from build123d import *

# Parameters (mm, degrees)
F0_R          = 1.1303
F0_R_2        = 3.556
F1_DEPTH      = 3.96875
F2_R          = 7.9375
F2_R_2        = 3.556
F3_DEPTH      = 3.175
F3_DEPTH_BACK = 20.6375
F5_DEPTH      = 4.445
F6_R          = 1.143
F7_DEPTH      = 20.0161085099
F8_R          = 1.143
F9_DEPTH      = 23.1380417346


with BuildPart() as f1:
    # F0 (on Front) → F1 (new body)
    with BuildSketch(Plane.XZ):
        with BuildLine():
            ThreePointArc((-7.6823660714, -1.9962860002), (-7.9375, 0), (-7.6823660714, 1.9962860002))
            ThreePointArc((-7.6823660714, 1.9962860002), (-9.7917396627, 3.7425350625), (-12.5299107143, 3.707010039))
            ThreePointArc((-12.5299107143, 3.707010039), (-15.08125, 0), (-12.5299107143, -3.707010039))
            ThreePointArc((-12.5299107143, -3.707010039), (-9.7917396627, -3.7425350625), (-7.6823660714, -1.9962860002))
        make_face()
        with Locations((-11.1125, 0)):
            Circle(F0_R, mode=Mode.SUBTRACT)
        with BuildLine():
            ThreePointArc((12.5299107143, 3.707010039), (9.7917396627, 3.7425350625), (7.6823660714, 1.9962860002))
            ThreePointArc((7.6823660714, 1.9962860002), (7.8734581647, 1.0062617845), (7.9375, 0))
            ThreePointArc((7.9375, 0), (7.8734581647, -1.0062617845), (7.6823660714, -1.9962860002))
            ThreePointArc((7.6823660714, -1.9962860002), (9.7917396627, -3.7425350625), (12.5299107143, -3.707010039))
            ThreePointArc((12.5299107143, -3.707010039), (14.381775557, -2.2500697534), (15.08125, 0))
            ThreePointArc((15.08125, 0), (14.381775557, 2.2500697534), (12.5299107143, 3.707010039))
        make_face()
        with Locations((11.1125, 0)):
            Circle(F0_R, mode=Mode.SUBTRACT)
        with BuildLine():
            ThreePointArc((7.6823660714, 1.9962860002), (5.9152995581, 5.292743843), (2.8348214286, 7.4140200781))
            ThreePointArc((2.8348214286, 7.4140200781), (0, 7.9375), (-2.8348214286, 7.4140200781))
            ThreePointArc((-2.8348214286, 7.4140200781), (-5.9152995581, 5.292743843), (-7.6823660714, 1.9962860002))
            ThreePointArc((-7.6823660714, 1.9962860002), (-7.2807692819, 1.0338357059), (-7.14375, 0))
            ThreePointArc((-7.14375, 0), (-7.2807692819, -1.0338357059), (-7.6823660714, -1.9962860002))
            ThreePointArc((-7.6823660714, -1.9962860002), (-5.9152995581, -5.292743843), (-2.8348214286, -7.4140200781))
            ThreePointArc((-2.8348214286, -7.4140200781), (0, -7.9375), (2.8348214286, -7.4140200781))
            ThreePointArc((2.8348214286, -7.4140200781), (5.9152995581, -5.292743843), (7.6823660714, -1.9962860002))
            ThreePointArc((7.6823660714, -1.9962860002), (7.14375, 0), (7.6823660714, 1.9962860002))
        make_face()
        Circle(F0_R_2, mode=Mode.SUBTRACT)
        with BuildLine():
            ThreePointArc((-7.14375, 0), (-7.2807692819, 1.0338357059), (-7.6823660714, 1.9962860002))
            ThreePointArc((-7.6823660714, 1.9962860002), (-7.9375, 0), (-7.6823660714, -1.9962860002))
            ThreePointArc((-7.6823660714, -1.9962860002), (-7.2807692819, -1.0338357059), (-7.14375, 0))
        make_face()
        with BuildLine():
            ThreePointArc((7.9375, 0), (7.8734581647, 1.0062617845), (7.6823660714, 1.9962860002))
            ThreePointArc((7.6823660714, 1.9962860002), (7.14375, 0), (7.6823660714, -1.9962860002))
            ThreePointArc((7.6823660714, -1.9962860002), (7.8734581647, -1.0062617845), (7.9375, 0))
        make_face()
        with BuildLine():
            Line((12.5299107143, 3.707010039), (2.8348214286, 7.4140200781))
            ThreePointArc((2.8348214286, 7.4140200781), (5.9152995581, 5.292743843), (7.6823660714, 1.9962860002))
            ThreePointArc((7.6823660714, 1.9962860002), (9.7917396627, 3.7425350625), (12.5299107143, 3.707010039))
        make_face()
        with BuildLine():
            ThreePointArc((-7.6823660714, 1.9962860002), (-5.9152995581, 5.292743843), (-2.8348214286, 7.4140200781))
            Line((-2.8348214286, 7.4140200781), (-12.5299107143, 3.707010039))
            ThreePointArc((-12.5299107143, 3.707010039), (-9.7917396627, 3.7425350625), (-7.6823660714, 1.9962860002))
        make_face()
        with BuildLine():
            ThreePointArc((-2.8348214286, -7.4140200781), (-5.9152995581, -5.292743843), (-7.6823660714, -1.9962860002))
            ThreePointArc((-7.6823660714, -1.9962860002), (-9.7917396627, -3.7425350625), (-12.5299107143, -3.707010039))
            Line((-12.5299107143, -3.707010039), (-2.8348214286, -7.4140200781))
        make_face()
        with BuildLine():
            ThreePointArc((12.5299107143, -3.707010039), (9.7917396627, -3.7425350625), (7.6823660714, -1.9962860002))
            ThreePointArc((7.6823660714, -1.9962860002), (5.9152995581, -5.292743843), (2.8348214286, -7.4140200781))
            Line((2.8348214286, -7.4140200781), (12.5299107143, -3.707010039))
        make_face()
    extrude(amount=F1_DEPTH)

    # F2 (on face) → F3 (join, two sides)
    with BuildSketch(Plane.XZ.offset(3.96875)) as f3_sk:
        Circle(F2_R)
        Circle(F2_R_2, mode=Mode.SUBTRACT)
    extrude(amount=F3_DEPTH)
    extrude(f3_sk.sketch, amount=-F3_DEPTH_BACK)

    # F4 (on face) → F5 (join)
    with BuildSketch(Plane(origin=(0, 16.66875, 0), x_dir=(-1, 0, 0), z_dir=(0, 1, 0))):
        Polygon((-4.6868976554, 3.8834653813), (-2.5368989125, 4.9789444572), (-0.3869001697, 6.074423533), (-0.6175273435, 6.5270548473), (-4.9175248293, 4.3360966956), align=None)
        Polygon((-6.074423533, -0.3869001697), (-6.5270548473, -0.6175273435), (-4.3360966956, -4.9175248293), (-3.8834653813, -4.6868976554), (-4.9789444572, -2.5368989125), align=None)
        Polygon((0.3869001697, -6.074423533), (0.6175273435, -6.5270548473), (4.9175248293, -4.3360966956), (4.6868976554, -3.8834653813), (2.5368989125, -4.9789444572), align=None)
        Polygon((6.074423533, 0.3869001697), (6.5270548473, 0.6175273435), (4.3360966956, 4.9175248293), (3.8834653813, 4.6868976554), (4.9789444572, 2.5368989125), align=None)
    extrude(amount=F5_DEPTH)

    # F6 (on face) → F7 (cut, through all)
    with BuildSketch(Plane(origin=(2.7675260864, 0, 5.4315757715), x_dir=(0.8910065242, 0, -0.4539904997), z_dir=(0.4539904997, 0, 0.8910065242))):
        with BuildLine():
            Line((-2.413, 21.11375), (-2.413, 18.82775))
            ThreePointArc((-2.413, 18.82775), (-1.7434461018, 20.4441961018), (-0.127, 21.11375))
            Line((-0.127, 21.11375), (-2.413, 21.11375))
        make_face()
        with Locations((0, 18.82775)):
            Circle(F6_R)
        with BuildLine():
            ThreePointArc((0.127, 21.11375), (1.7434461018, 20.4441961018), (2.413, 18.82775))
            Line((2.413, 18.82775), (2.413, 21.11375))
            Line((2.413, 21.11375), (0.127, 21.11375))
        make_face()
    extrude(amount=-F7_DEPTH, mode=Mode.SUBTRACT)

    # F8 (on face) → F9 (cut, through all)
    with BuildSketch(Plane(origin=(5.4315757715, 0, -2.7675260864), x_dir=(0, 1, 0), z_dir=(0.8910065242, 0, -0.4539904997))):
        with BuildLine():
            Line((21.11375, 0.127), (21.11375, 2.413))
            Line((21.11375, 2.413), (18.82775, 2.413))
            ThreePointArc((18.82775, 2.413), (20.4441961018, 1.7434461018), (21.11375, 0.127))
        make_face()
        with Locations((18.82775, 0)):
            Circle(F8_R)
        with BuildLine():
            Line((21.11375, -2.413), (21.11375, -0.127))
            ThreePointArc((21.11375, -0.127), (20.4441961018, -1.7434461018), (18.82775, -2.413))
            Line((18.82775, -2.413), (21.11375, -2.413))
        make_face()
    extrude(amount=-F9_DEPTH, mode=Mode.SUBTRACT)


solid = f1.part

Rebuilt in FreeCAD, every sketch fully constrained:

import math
import FreeCAD as App
import Part
import Sketcher
Q = App.Units.Quantity


def add_polygon(sketch, points):
    """Adds a closed chain of lines whose ends are joined by coincident constraints."""
    first, n = sketch.GeometryCount, len(points)
    for a, b in zip(points, points[1:] + points[:1]):
        sketch.addGeometry(Part.LineSegment(App.Vector(*a, 0), App.Vector(*b, 0)), False)
    for i in range(n):
        sketch.addConstraint(Sketcher.Constraint("Coincident", first + i, 2, first + (i + 1) % n, 1))

doc = App.newDocument("Part")
body = doc.addObject("PartDesign::Body", "Body")

# Sketch on XZ plane
sketch1 = body.newObject("Sketcher::SketchObject", "Sketch")
sketch1.AttachmentSupport = (doc.getObject("XZ_Plane"), [""])
sketch1.MapMode = "FlatFace"
sketch1.addGeometry([
    Part.ArcOfCircle(Part.Circle(App.Vector(0, 0, 0), App.Vector(0, 0, 1), 7.9), math.radians(-111), math.radians(-69)),  # 0
    Part.LineSegment(App.Vector(2.8, -7.4, 0), App.Vector(12.5, -3.7, 0)),  # 1
    Part.ArcOfCircle(Part.Circle(App.Vector(11.1, 0, 0), App.Vector(0, 0, 1), 4), math.radians(-69), math.radians(0)),  # 2
    Part.ArcOfCircle(Part.Circle(App.Vector(11.1, 0, 0), App.Vector(0, 0, 1), 4), math.radians(0), math.radians(69)),  # 3
    Part.LineSegment(App.Vector(12.5, 3.7, 0), App.Vector(2.8, 7.4, 0)),  # 4
    Part.ArcOfCircle(Part.Circle(App.Vector(0, 0, 0), App.Vector(0, 0, 1), 7.9), math.radians(69), math.radians(111)),  # 5
    Part.LineSegment(App.Vector(-2.8, 7.4, 0), App.Vector(-12.5, 3.7, 0)),  # 6
    Part.ArcOfCircle(Part.Circle(App.Vector(-11.1, 0, 0), App.Vector(0, 0, 1), 4), math.radians(111), math.radians(249)),  # 7
    Part.LineSegment(App.Vector(-12.5, -3.7, 0), App.Vector(-2.8, -7.4, 0)),  # 8
    Part.Circle(App.Vector(-11.1, 0, 0), App.Vector(0, 0, 1), 1.1),  # 9
    Part.Circle(App.Vector(0, 0, 0), App.Vector(0, 0, 1), 3.6),  # 10
    Part.Circle(App.Vector(11.1, 0, 0), App.Vector(0, 0, 1), 1.1),  # 11
], False)
sketch1.addConstraint([
    Sketcher.Constraint("Tangent", 0, 2, 1, 1),
    Sketcher.Constraint("Tangent", 1, 2, 2, 1),
    Sketcher.Constraint("Tangent", 2, 2, 3, 1),
    Sketcher.Constraint("Tangent", 3, 2, 4, 1),
    Sketcher.Constraint("Tangent", 4, 2, 5, 1),
    Sketcher.Constraint("Tangent", 5, 2, 6, 1),
    Sketcher.Constraint("Tangent", 6, 2, 7, 1),
    Sketcher.Constraint("Tangent", 7, 2, 8, 1),
    Sketcher.Constraint("Tangent", 8, 2, 0, 1),
    Sketcher.Constraint("Coincident", 0, 3, -1, 1),
    Sketcher.Constraint("Coincident", 5, 3, -1, 1),
    Sketcher.Constraint("Coincident", 10, 3, -1, 1),
    Sketcher.Constraint("Coincident", 9, 3, 7, 3),
    Sketcher.Constraint("Coincident", 11, 3, 2, 3),
    Sketcher.Constraint("Equal", 2, 3),
    Sketcher.Constraint("Equal", 0, 5),
    Sketcher.Constraint("Equal", 3, 7),
    Sketcher.Constraint("Equal", 9, 11),
    Sketcher.Constraint("Symmetric", 2, 3, 7, 3, -1, 1),
    Sketcher.Constraint("PointOnObject", 2, 3, -1),
    Sketcher.Constraint("PointOnObject", 2, 2, -1),
    Sketcher.Constraint("Diameter", 10, Q("0.28 in")),
    Sketcher.Constraint("Diameter", 9, Q("0.089 in")),
    Sketcher.Constraint("Radius", 0, Q("0.3125 in")),
    Sketcher.Constraint("Radius", 2, Q("0.15625 in")),
    Sketcher.Constraint("DistanceX", -1, 1, 2, 3, Q("0.4375 in")),
])
pad1 = body.newObject("PartDesign::Pad", "Pad")
pad1.Profile = sketch1
pad1.Length = Q("0.15625 in")

# Sketch on XZ plane
sketch2 = body.newObject("Sketcher::SketchObject", "Sketch001")
sketch2.AttachmentSupport = (doc.getObject("XZ_Plane"), [""])
sketch2.MapMode = "FlatFace"
sketch2.AttachmentOffset = App.Placement(App.Vector(0, 0, 0.15625 * 25.4), App.Rotation())
sketch2.addGeometry([
    Part.Circle(App.Vector(0, 0, 0), App.Vector(0, 0, 1), 7.9),
    Part.Circle(App.Vector(0, 0, 0), App.Vector(0, 0, 1), 3.6),
], False)
sketch2.addConstraint([
    Sketcher.Constraint("Coincident", 0, 3, -1, 1),
    Sketcher.Constraint("Coincident", 1, 3, -1, 1),
    Sketcher.Constraint("Diameter", 1, Q("0.28 in")),
    Sketcher.Constraint("Diameter", 0, Q("0.625 in")),
])
pad2 = body.newObject("PartDesign::Pad", "Pad001")
pad2.Profile = sketch2
pad2.Type = "TwoLengths"
pad2.Length = Q("0.125 in")
pad2.Length2 = Q("0.8125 in")

# Sketch on XZ plane
sketch3 = body.newObject("Sketcher::SketchObject", "Sketch002")
sketch3.AttachmentSupport = (doc.getObject("XZ_Plane"), [""])
sketch3.MapMode = "FlatFace"
sketch3.AttachmentOffset = App.Placement(App.Vector(0, 0, -0.65625 * 25.4), App.Rotation())
add_polygon(sketch3, [(4.7, 3.9), (2.5, 5), (0.4, 6.1), (0.6, 6.5), (4.9, 4.3)])  # lines 0-4
add_polygon(sketch3, [(6.1, -0.4), (6.5, -0.6), (4.3, -4.9), (3.9, -4.7), (5, -2.5)])  # lines 5-9
add_polygon(sketch3, [(-0.4, -6.1), (-0.6, -6.5), (-4.9, -4.3), (-4.7, -3.9), (-2.5, -5)])  # lines 10-14
add_polygon(sketch3, [(-6.1, 0.4), (-6.5, 0.6), (-4.3, 4.9), (-3.9, 4.7), (-5, 2.5)])  # lines 15-19
sketch3.addConstraint([
    Sketcher.Constraint("Symmetric", 2, 2, 10, 2, -1, 1),
    Sketcher.Constraint("Symmetric", 3, 2, 11, 2, -1, 1),
    Sketcher.Constraint("Symmetric", 4, 2, 12, 2, -1, 1),
    Sketcher.Constraint("Symmetric", 0, 2, 13, 2, -1, 1),
    Sketcher.Constraint("Symmetric", 1, 2, 14, 2, -1, 1),
    Sketcher.Constraint("Symmetric", 5, 2, 15, 2, -1, 1),
    Sketcher.Constraint("Symmetric", 6, 2, 16, 2, -1, 1),
    Sketcher.Constraint("Symmetric", 7, 2, 17, 2, -1, 1),
    Sketcher.Constraint("Symmetric", 8, 2, 18, 2, -1, 1),
    Sketcher.Constraint("Symmetric", 9, 2, 19, 2, -1, 1),
    Sketcher.Constraint("Parallel", 0, 1),
    Sketcher.Constraint("Perpendicular", 1, 2),
    Sketcher.Constraint("Perpendicular", 2, 3),
    Sketcher.Constraint("Perpendicular", 3, 4),
    Sketcher.Constraint("Perpendicular", 4, 5),
    Sketcher.Constraint("Perpendicular", 5, 6),
    Sketcher.Constraint("Perpendicular", 6, 7),
    Sketcher.Constraint("Perpendicular", 7, 8),
    Sketcher.Constraint("Parallel", 8, 9),
    Sketcher.Constraint("Equal", 0, 1),
    Sketcher.Constraint("Equal", 4, 5),
    Sketcher.Constraint("Equal", 3, 6),
    Sketcher.Constraint("Equal", 1, 8),
    Sketcher.Constraint("Angle", 0, Q("153 deg")),
    Sketcher.Constraint("Distance", 2, Q("0.02 in")),
    Sketcher.Constraint("Distance", 3, Q("0.19 in")),
    Sketcher.Constraint("DistanceX", -1, 1, 0, 2, 2.536899),
    Sketcher.Constraint("DistanceY", 8, 2, -1, 1, 2.536899),
    Sketcher.Constraint("DistanceX", 6, 2, 4, 2, 0.350801),
    Sketcher.Constraint("DistanceY", 7, 2, 11, 2, 0.350801),
])
pad3 = body.newObject("PartDesign::Pad", "Pad002")
pad3.Profile = sketch3
pad3.Length = Q("0.175 in")
pad3.Reversed = True

# Sketch on an angled plane
sketch4 = body.newObject("Sketcher::SketchObject", "Sketch003")
sketch4.Placement = App.Placement(App.Vector(2.767526, 0, 5.431576), App.Rotation(App.Vector(0.891006524, 0, -0.4539905), App.Vector(0, 1, 0), App.Vector(0.4539905, 0, 0.891006524), "ZXY"))
sketch4.addGeometry([
    Part.LineSegment(App.Vector(-2.4, 21.1, 0), App.Vector(-2.4, 18.8, 0)),  # 0
    Part.ArcOfCircle(Part.Circle(App.Vector(-0.1, 18.8, 0), App.Vector(0, 0, 1), 2.3), math.radians(90), math.radians(180)),  # 1
    Part.LineSegment(App.Vector(-0.1, 21.1, 0), App.Vector(-2.4, 21.1, 0)),  # 2
    Part.Circle(App.Vector(0, 18.8, 0), App.Vector(0, 0, 1), 1.1),  # 3
    Part.ArcOfCircle(Part.Circle(App.Vector(0.1, 18.8, 0), App.Vector(0, 0, 1), 2.3), math.radians(0), math.radians(90)),  # 4
    Part.LineSegment(App.Vector(2.4, 18.8, 0), App.Vector(2.4, 21.1, 0)),  # 5
    Part.LineSegment(App.Vector(2.4, 21.1, 0), App.Vector(0.1, 21.1, 0)),  # 6
], False)
sketch4.addConstraint([
    Sketcher.Constraint("Tangent", 0, 2, 1, 2),
    Sketcher.Constraint("Tangent", 1, 1, 2, 1),
    Sketcher.Constraint("Coincident", 2, 2, 0, 1),
    Sketcher.Constraint("Tangent", 4, 1, 5, 1),
    Sketcher.Constraint("Coincident", 5, 2, 6, 1),
    Sketcher.Constraint("Tangent", 6, 2, 4, 2),
    Sketcher.Constraint("Vertical", 0),
    Sketcher.Constraint("Horizontal", 2),
    Sketcher.Constraint("Vertical", 5),
    Sketcher.Constraint("Horizontal", 6),
    Sketcher.Constraint("Equal", 1, 4),
    Sketcher.Constraint("Symmetric", 1, 3, 4, 3, -2),
    Sketcher.Constraint("PointOnObject", 3, 3, -2),
    Sketcher.Constraint("Horizontal", 1, 3, 3, 3),
    Sketcher.Constraint("Diameter", 3, Q("0.09 in")),
    Sketcher.Constraint("Radius", 1, Q("0.09 in")),
    Sketcher.Constraint("DistanceX", 0, 2, 4, 3, Q("0.1 in")),
    Sketcher.Constraint("DistanceY", -1, 1, 1, 3, 18.82775),
])
pocket1 = body.newObject("PartDesign::Pocket", "Pocket")
pocket1.Profile = sketch4
pocket1.Type = "ThroughAll"

# Sketch on an angled plane
sketch5 = body.newObject("Sketcher::SketchObject", "Sketch004")
sketch5.Placement = App.Placement(App.Vector(5.431576, 0, -2.767526), App.Rotation(App.Vector(0, 1, 0), App.Vector(0.4539905, 0, 0.891006524), App.Vector(0.891006524, 0, -0.4539905), "ZXY"))
sketch5.addGeometry([
    Part.LineSegment(App.Vector(21.1, 0.1, 0), App.Vector(21.1, 2.4, 0)),  # 0
    Part.LineSegment(App.Vector(21.1, 2.4, 0), App.Vector(18.8, 2.4, 0)),  # 1
    Part.ArcOfCircle(Part.Circle(App.Vector(18.8, 0.1, 0), App.Vector(0, 0, 1), 2.3), math.radians(0), math.radians(90)),  # 2
    Part.Circle(App.Vector(18.8, 0, 0), App.Vector(0, 0, 1), 1.1),  # 3
    Part.LineSegment(App.Vector(21.1, -2.4, 0), App.Vector(21.1, -0.1, 0)),  # 4
    Part.ArcOfCircle(Part.Circle(App.Vector(18.8, -0.1, 0), App.Vector(0, 0, 1), 2.3), math.radians(-90), math.radians(0)),  # 5
    Part.LineSegment(App.Vector(18.8, -2.4, 0), App.Vector(21.1, -2.4, 0)),  # 6
], False)
sketch5.addConstraint([
    Sketcher.Constraint("Coincident", 0, 2, 1, 1),
    Sketcher.Constraint("Tangent", 1, 2, 2, 2),
    Sketcher.Constraint("Tangent", 2, 1, 0, 1),
    Sketcher.Constraint("Tangent", 4, 2, 5, 2),
    Sketcher.Constraint("Tangent", 5, 1, 6, 1),
    Sketcher.Constraint("Coincident", 6, 2, 4, 1),
    Sketcher.Constraint("Vertical", 0),
    Sketcher.Constraint("Horizontal", 1),
    Sketcher.Constraint("Vertical", 4),
    Sketcher.Constraint("Horizontal", 6),
    Sketcher.Constraint("Equal", 2, 5),
    Sketcher.Constraint("Symmetric", 2, 3, 5, 3, -1),
    Sketcher.Constraint("PointOnObject", 3, 3, -1),
    Sketcher.Constraint("Vertical", 2, 3, 3, 3),
    Sketcher.Constraint("Diameter", 3, Q("0.09 in")),
    Sketcher.Constraint("Radius", 2, Q("0.09 in")),
    Sketcher.Constraint("DistanceY", 5, 3, 0, 2, Q("0.1 in")),
    Sketcher.Constraint("DistanceX", -1, 1, 2, 3, 18.82775),
])
pocket2 = body.newObject("PartDesign::Pocket", "Pocket001")
pocket2.Profile = sketch5
pocket2.Type = "ThroughAll"

doc.recompute()
